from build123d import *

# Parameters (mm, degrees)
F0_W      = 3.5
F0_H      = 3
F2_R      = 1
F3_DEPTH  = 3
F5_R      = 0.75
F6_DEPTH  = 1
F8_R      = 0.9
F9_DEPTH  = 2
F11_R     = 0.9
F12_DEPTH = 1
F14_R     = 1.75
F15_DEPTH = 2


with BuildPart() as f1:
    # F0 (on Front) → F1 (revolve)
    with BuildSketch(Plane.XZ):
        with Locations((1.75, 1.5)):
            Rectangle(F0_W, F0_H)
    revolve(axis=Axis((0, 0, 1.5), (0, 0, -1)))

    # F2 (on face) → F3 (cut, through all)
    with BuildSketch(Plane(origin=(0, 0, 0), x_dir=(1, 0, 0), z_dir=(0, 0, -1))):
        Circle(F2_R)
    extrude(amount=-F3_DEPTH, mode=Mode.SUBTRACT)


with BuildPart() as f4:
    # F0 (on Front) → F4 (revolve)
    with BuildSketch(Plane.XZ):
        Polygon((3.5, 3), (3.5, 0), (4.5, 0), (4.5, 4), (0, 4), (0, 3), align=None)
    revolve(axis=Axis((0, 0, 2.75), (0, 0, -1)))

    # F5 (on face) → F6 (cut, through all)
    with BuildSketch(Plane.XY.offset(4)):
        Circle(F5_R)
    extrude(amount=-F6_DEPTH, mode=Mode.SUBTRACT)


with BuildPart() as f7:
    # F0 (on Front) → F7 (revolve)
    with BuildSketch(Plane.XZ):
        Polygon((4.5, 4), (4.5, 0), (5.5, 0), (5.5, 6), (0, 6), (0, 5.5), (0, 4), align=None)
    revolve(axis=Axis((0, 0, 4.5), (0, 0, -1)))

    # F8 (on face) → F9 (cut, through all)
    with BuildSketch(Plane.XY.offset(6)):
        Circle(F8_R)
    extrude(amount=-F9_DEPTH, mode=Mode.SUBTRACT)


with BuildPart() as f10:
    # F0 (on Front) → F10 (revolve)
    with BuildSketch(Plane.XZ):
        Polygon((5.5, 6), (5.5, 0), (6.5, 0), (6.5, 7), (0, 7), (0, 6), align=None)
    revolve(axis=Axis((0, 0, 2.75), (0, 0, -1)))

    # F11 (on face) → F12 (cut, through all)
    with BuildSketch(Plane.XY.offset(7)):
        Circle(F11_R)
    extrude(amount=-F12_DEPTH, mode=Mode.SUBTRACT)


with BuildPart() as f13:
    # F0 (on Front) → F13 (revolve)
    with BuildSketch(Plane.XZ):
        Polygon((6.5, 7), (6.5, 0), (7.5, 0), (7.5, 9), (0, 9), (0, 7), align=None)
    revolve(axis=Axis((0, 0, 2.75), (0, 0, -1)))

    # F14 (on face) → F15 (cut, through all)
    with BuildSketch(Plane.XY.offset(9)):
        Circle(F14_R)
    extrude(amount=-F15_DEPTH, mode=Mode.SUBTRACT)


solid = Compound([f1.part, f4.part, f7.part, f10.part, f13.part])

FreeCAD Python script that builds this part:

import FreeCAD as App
import Part
import Sketcher
Q = App.Units.Quantity


def add_polygon(sketch, points):
    """Adds a closed chain of lines whose ends are joined by coincident constraints."""
    first, n = sketch.GeometryCount, len(points)
    for a, b in zip(points, points[1:] + points[:1]):
        sketch.addGeometry(Part.LineSegment(App.Vector(*a, 0), App.Vector(*b, 0)), False)
    for i in range(n):
        sketch.addConstraint(Sketcher.Constraint("Coincident", first + i, 2, first + (i + 1) % n, 1))

doc = App.newDocument("Part")
body = doc.addObject("PartDesign::Body", "Body")

sketch1 = doc.addObject("Sketcher::SketchObject", "Sketch")
body.addObject(sketch1)
sketch1.AttachmentSupport = (doc.XZ_Plane, [""])
sketch1.MapMode = "FlatFace"
add_polygon(sketch1, [(0, 3), (0, 0), (3.5, 0), (3.5, 3)])
sketch1.addConstraint([
    Sketcher.Constraint("Vertical", 0),
    Sketcher.Constraint("Horizontal", 1),
    Sketcher.Constraint("Vertical", 2),
    Sketcher.Constraint("Horizontal", 3),
    Sketcher.Constraint("Coincident", 0, 2, -1, 1),
    Sketcher.Constraint("DistanceY", 0, 2, 0, 1, Q("3 mm")),
    Sketcher.Constraint("DistanceX", 1, 1, 1, 2, Q("3.5 mm")),
])
revolution = doc.addObject("PartDesign::Revolution", "Revolution")
body.addObject(revolution)
revolution.Profile = sketch1
revolution.ReferenceAxis = (sketch1, ["V_Axis"])
revolution.Angle = 360

sketch2 = doc.addObject("Sketcher::SketchObject", "Sketch001")
body.addObject(sketch2)
sketch2.AttachmentSupport = (doc.XY_Plane, [""])
sketch2.MapMode = "FlatFace"
sketch2.addGeometry(Part.Circle(App.Vector(0, 0, 0), App.Vector(0, 0, 1), 1), False)
sketch2.addConstraint([
    Sketcher.Constraint("Coincident", 0, 3, -1, 1),
    Sketcher.Constraint("Diameter", 0, Q("2 mm")),
])
pocket1 = doc.addObject("PartDesign::Pocket", "Pocket")
body.addObject(pocket1)
pocket1.Profile = sketch2
pocket1.Type = "ThroughAll"
pocket1.Reversed = True
body2 = doc.addObject("PartDesign::Body", "Body001")

sketch3 = doc.addObject("Sketcher::SketchObject", "Sketch002")
body2.addObject(sketch3)
sketch3.AttachmentSupport = (doc.getObject("XZ_Plane001"), [""])
sketch3.MapMode = "FlatFace"
add_polygon(sketch3, [(3.5, 3), (3.5, 0), (4.5, 0), (4.5, 4), (0, 4), (0, 3)])
sketch3.addConstraint([
    Sketcher.Constraint("Vertical", 0),
    Sketcher.Constraint("Horizontal", 1),
    Sketcher.Constraint("Vertical", 2),
    Sketcher.Constraint("Horizontal", 3),
    Sketcher.Constraint("Vertical", 4),
    Sketcher.Constraint("Horizontal", 5),
    Sketcher.Constraint("PointOnObject", 0, 2, -1),
    Sketcher.Constraint("PointOnObject", 3, 2, -2),
    Sketcher.Constraint("Equal", 1, 4),
    Sketcher.Constraint("DistanceX", 1, 1, 1, 2, Q("1 mm")),
    Sketcher.Constraint("DistanceY", 0, 2, 0, 1, Q("3 mm")),
    Sketcher.Constraint("DistanceX", 3, 2, 3, 1, Q("4.5 mm")),
])
revolution2 = doc.addObject("PartDesign::Revolution", "Revolution001")
body2.addObject(revolution2)
revolution2.Profile = sketch3
revolution2.ReferenceAxis = (sketch3, ["V_Axis"])
revolution2.Angle = 360

sketch4 = doc.addObject("Sketcher::SketchObject", "Sketch003")
body2.addObject(sketch4)
sketch4.AttachmentSupport = (doc.getObject("XY_Plane001"), [""])
sketch4.MapMode = "FlatFace"
sketch4.AttachmentOffset = App.Placement(App.Vector(0, 0, 4), App.Rotation())
sketch4.addGeometry(Part.Circle(App.Vector(0, 0, 0), App.Vector(0, 0, 1), 0.8), False)
sketch4.addConstraint([
    Sketcher.Constraint("Coincident", 0, 3, -1, 1),
    Sketcher.Constraint("Diameter", 0, Q("1.5 mm")),
])
pocket2 = doc.addObject("PartDesign::Pocket", "Pocket001")
body2.addObject(pocket2)
pocket2.Profile = sketch4
pocket2.Type = "ThroughAll"
body3 = doc.addObject("PartDesign::Body", "Body002")

sketch5 = doc.addObject("Sketcher::SketchObject", "Sketch004")
body3.addObject(sketch5)
sketch5.AttachmentSupport = (doc.getObject("XZ_Plane002"), [""])
sketch5.MapMode = "FlatFace"
add_polygon(sketch5, [(4.5, 4), (4.5, 0), (5.5, 0), (5.5, 6), (0, 6), (0, 4)])
sketch5.addConstraint([
    Sketcher.Constraint("Vertical", 0),
    Sketcher.Constraint("Horizontal", 1),
    Sketcher.Constraint("Vertical", 2),
    Sketcher.Constraint("Horizontal", 3),
    Sketcher.Constraint("Vertical", 4),
    Sketcher.Constraint("Horizontal", 5),
    Sketcher.Constraint("PointOnObject", 0, 2, -1),
    Sketcher.Constraint("PointOnObject", 3, 2, -2),
    Sketcher.Constraint("DistanceX", 1, 1, 1, 2, Q("1 mm")),
    Sketcher.Constraint("DistanceY", 0, 2, 0, 1, Q("4 mm")),
    Sketcher.Constraint("DistanceY", 2, 1, 2, 2, Q("6 mm")),
    Sketcher.Constraint("DistanceX", 3, 2, 3, 1, Q("5.5 mm")),
])
revolution3 = doc.addObject("PartDesign::Revolution", "Revolution002")
body3.addObject(revolution3)
revolution3.Profile = sketch5
revolution3.ReferenceAxis = (sketch5, ["V_Axis"])
revolution3.Angle = 360

sketch6 = doc.addObject("Sketcher::SketchObject", "Sketch005")
body3.addObject(sketch6)
sketch6.AttachmentSupport = (doc.getObject("XY_Plane002"), [""])
sketch6.MapMode = "FlatFace"
sketch6.AttachmentOffset = App.Placement(App.Vector(0, 0, 6), App.Rotation())
sketch6.addGeometry(Part.Circle(App.Vector(0, 0, 0), App.Vector(0, 0, 1), 0.9), False)
sketch6.addConstraint([
    Sketcher.Constraint("Coincident", 0, 3, -1, 1),
    Sketcher.Constraint("Diameter", 0, Q("1.8 mm")),
])
pocket3 = doc.addObject("PartDesign::Pocket", "Pocket002")
body3.addObject(pocket3)
pocket3.Profile = sketch6
pocket3.Type = "ThroughAll"
body4 = doc.addObject("PartDesign::Body", "Body003")

sketch7 = doc.addObject("Sketcher::SketchObject", "Sketch006")
body4.addObject(sketch7)
sketch7.AttachmentSupport = (doc.getObject("XZ_Plane003"), [""])
sketch7.MapMode = "FlatFace"
add_polygon(sketch7, [(5.5, 6), (5.5, 0), (6.5, 0), (6.5, 7), (0, 7), (0, 6)])
sketch7.addConstraint([
    Sketcher.Constraint("Vertical", 0),
    Sketcher.Constraint("Horizontal", 1),
    Sketcher.Constraint("Vertical", 2),
    Sketcher.Constraint("Horizontal", 3),
    Sketcher.Constraint("Vertical", 4),
    Sketcher.Constraint("Horizontal", 5),
    Sketcher.Constraint("PointOnObject", 0, 2, -1),
    Sketcher.Constraint("PointOnObject", 3, 2, -2),
    Sketcher.Constraint("Equal", 1, 4),
    Sketcher.Constraint("DistanceX", 1, 1, 1, 2, Q("1 mm")),
    Sketcher.Constraint("DistanceY", 0, 2, 0, 1, Q("6 mm")),
    Sketcher.Constraint("DistanceX", 3, 2, 3, 1, Q("6.5 mm")),
])
revolution4 = doc.addObject("PartDesign::Revolution", "Revolution003")
body4.addObject(revolution4)
revolution4.Profile = sketch7
revolution4.ReferenceAxis = (sketch7, ["V_Axis"])
revolution4.Angle = 360

sketch8 = doc.addObject("Sketcher::SketchObject", "Sketch007")
body4.addObject(sketch8)
sketch8.AttachmentSupport = (doc.getObject("XY_Plane003"), [""])
sketch8.MapMode = "FlatFace"
sketch8.AttachmentOffset = App.Placement(App.Vector(0, 0, 7), App.Rotation())
sketch8.addGeometry(Part.Circle(App.Vector(0, 0, 0), App.Vector(0, 0, 1), 0.9), False)
sketch8.addConstraint([
    Sketcher.Constraint("Coincident", 0, 3, -1, 1),
    Sketcher.Constraint("Diameter", 0, Q("1.8 mm")),
])
pocket4 = doc.addObject("PartDesign::Pocket", "Pocket003")
body4.addObject(pocket4)
pocket4.Profile = sketch8
pocket4.Type = "ThroughAll"
body5 = doc.addObject("PartDesign::Body", "Body004")

sketch9 = doc.addObject("Sketcher::SketchObject", "Sketch008")
body5.addObject(sketch9)
sketch9.AttachmentSupport = (doc.getObject("XZ_Plane004"), [""])
sketch9.MapMode = "FlatFace"
add_polygon(sketch9, [(6.5, 7), (6.5, 0), (7.5, 0), (7.5, 9), (0, 9), (0, 7)])
sketch9.addConstraint([
    Sketcher.Constraint("Vertical", 0),
    Sketcher.Constraint("Horizontal", 1),
    Sketcher.Constraint("Vertical", 2),
    Sketcher.Constraint("Horizontal", 3),
    Sketcher.Constraint("Vertical", 4),
    Sketcher.Constraint("Horizontal", 5),
    Sketcher.Constraint("PointOnObject", 0, 2, -1),
    Sketcher.Constraint("PointOnObject", 3, 2, -2),
    Sketcher.Constraint("DistanceX", 1, 1, 1, 2, Q("1 mm")),
    Sketcher.Constraint("DistanceY", 0, 2, 0, 1, Q("7 mm")),
    Sketcher.Constraint("DistanceY", 2, 1, 2, 2, Q("9 mm")),
    Sketcher.Constraint("DistanceX", 3, 2, 3, 1, Q("7.5 mm")),
])
revolution5 = doc.addObject("PartDesign::Revolution", "Revolution004")
body5.addObject(revolution5)
revolution5.Profile = sketch9
revolution5.ReferenceAxis = (sketch9, ["V_Axis"])
revolution5.Angle = 360

sketch10 = doc.addObject("Sketcher::SketchObject", "Sketch009")
body5.addObject(sketch10)
sketch10.AttachmentSupport = (doc.getObject("XY_Plane004"), [""])
sketch10.MapMode = "FlatFace"
sketch10.AttachmentOffset = App.Placement(App.Vector(0, 0, 9), App.Rotation())
sketch10.addGeometry(Part.Circle(App.Vector(0, 0, 0), App.Vector(0, 0, 1), 1.8), False)
sketch10.addConstraint([
    Sketcher.Constraint("Coincident", 0, 3, -1, 1),
    Sketcher.Constraint("Diameter", 0, Q("3.5 mm")),
])
pocket5 = doc.addObject("PartDesign::Pocket", "Pocket004")
body5.addObject(pocket5)
pocket5.Profile = sketch10
pocket5.Type = "ThroughAll"

doc.recompute()
